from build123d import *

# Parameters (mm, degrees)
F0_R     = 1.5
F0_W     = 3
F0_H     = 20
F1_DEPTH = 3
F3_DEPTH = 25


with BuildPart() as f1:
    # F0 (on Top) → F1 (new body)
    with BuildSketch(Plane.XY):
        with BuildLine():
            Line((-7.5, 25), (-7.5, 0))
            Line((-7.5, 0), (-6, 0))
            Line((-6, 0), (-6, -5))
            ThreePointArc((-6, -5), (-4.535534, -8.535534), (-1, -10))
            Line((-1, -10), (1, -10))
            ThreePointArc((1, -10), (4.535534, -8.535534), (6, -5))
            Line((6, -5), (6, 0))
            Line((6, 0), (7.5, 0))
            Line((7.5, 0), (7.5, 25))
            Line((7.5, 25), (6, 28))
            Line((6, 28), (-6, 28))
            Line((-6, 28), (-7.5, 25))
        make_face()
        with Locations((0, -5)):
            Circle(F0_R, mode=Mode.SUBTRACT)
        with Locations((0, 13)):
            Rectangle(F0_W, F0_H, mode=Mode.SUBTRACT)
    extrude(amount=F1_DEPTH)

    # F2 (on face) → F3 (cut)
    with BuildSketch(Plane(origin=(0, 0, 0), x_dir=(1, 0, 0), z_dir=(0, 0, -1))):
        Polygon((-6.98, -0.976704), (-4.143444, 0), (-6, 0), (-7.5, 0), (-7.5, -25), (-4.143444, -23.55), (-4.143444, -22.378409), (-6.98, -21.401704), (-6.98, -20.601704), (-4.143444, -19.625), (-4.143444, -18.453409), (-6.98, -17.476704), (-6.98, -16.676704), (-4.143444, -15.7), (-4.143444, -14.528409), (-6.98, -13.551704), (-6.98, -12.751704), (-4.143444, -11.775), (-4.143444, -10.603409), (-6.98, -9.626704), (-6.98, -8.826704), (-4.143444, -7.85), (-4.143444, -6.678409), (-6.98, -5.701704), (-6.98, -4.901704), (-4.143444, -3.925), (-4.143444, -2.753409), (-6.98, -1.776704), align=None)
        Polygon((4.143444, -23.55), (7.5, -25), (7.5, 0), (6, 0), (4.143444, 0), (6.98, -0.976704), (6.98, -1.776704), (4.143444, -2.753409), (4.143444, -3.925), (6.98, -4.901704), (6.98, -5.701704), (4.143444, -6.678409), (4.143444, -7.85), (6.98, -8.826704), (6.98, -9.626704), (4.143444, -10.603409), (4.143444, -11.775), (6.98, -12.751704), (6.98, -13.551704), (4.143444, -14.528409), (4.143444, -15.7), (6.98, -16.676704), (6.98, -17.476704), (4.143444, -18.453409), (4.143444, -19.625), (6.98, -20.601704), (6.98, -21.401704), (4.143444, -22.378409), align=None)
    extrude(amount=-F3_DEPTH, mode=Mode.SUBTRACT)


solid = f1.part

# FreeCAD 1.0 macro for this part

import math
import FreeCAD as App
import Part
import Sketcher

V = App.Vector
Q = App.Units.Quantity


def add_polygon(sketch, points):
    """Adds a closed chain of lines whose ends are joined by coincident constraints."""
    first, n = sketch.GeometryCount, len(points)
    for a, b in zip(points, points[1:] + points[:1]):
        sketch.addGeometry(Part.LineSegment(App.Vector(*a, 0), App.Vector(*b, 0)), False)
    for i in range(n):
        sketch.addConstraint(Sketcher.Constraint("Coincident", first + i, 2, first + (i + 1) % n, 1))

doc = App.newDocument("Part")
params = doc.addObject("Spreadsheet::Sheet", "Params")
for row, (alias, value) in enumerate([
    ("sketch1_diameter", "3 mm"),
    ("sketch1_radius", "5 mm"),
    ("sketch1_width", "2 mm"),
    ("sketch1_width2", "3 mm"),
    ("sketch1_height", "25 mm"),
    ("pad1_length", "3 mm"),
    ("sketch2_height", "25 mm"),
    ("sketch2_length", "3 mm"),
    ("sketch2_height2", "0.8 mm"),
    ("pocket1_length", "25 mm"),
], start=1):
    params.set(f"A{row}", alias)
    params.set(f"B{row}", "=" + value)
    params.setAlias(f"B{row}", alias)

body = doc.addObject("PartDesign::Body", "Body")

# Sketch on XY plane
sketch1 = body.newObject("Sketcher::SketchObject", "Sketch")
sketch1.AttachmentSupport = (doc.getObject("XY_Plane"), [""])
sketch1.MapMode = "FlatFace"
sketch1.addGeometry(Part.LineSegment(V(-7.5, 25, 0), V(-7.5, 0, 0)), False)  # 0
sketch1.addGeometry(Part.LineSegment(V(-7.5, 0, 0), V(-6, 0, 0)), False)  # 1
sketch1.addGeometry(Part.LineSegment(V(-6, 0, 0), V(-6, -5, 0)), False)  # 2
sketch1.addGeometry(Part.ArcOfCircle(Part.Circle(V(-1, -5, 0), V(0, 0, 1), 5), math.radians(179.999996), math.radians(270.000004)), False)  # 3
sketch1.addGeometry(Part.LineSegment(V(-1, -10, 0), V(1, -10, 0)), False)  # 4
sketch1.addGeometry(Part.ArcOfCircle(Part.Circle(V(1, -5, 0), V(0, 0, 1), 5), math.radians(-90.000004), math.radians(0.000004)), False)  # 5
sketch1.addGeometry(Part.LineSegment(V(6, -5, 0), V(6, 0, 0)), False)  # 6
sketch1.addGeometry(Part.LineSegment(V(6, 0, 0), V(7.5, 0, 0)), False)  # 7
sketch1.addGeometry(Part.LineSegment(V(7.5, 0, 0), V(7.5, 25, 0)), False)  # 8
sketch1.addGeometry(Part.LineSegment(V(7.5, 25, 0), V(6, 28, 0)), False)  # 9
sketch1.addGeometry(Part.LineSegment(V(6, 28, 0), V(-6, 28, 0)), False)  # 10
sketch1.addGeometry(Part.LineSegment(V(-6, 28, 0), V(-7.5, 25, 0)), False)  # 11
sketch1.addGeometry(Part.Circle(V(0, -5, 0), V(0, 0, 1), 1.5), False)  # 12
add_polygon(sketch1, [(1.5, 3), (-1.5, 3), (-1.5, 23), (1.5, 23)])  # lines 13-16
sketch1.addConstraint(Sketcher.Constraint("Coincident", 0, 2, 1, 1))
sketch1.addConstraint(Sketcher.Constraint("Coincident", 1, 2, 2, 1))
sketch1.addConstraint(Sketcher.Constraint("Tangent", 2, 2, 3, 1))
sketch1.addConstraint(Sketcher.Constraint("Tangent", 3, 2, 4, 1))
sketch1.addConstraint(Sketcher.Constraint("Tangent", 4, 2, 5, 1))
sketch1.addConstraint(Sketcher.Constraint("Tangent", 5, 2, 6, 1))
sketch1.addConstraint(Sketcher.Constraint("Coincident", 6, 2, 7, 1))
sketch1.addConstraint(Sketcher.Constraint("Coincident", 7, 2, 8, 1))
sketch1.addConstraint(Sketcher.Constraint("Coincident", 8, 2, 9, 1))
sketch1.addConstraint(Sketcher.Constraint("Coincident", 9, 2, 10, 1))
sketch1.addConstraint(Sketcher.Constraint("Coincident", 10, 2, 11, 1))
sketch1.addConstraint(Sketcher.Constraint("Coincident", 11, 2, 0, 1))
sketch1.addConstraint(Sketcher.Constraint("Vertical", 0))
sketch1.addConstraint(Sketcher.Constraint("Horizontal", 1))
sketch1.addConstraint(Sketcher.Constraint("Vertical", 2))
sketch1.addConstraint(Sketcher.Constraint("Horizontal", 4))
sketch1.addConstraint(Sketcher.Constraint("Vertical", 6))
sketch1.addConstraint(Sketcher.Constraint("Horizontal", 7))
sketch1.addConstraint(Sketcher.Constraint("Vertical", 8))
sketch1.addConstraint(Sketcher.Constraint("Horizontal", 10))
sketch1.addConstraint(Sketcher.Constraint("Horizontal", 13))
sketch1.addConstraint(Sketcher.Constraint("Vertical", 14))
sketch1.addConstraint(Sketcher.Constraint("Horizontal", 15))
sketch1.addConstraint(Sketcher.Constraint("Vertical", 16))
sketch1.addConstraint(Sketcher.Constraint("Equal", 3, 5))
sketch1.addConstraint(Sketcher.Constraint("Symmetric", 1, 2, 6, 2, -1, 1))
sketch1.addConstraint(Sketcher.Constraint("Symmetric", 0, 2, 7, 2, -2))
sketch1.addConstraint(Sketcher.Constraint("PointOnObject", 12, 3, -2))
sketch1.addConstraint(Sketcher.Constraint("Horizontal", 5, 3, 12, 3))
sketch1.addConstraint(Sketcher.Constraint("Horizontal", 8, 2, 11, 2))
sketch1.addConstraint(Sketcher.Constraint("Vertical", 6, 2, 9, 2))
sketch1.addConstraint(Sketcher.Constraint("Vertical", 2, 2, 10, 2))
sketch1.addConstraint(Sketcher.Constraint("Diameter", 12, 3.0))
sketch1.addConstraint(Sketcher.Constraint("Radius", 3, 5.0))
sketch1.addConstraint(Sketcher.Constraint("DistanceX", 4, 1, 4, 2, 2.0))
sketch1.addConstraint(Sketcher.Constraint("DistanceX", 13, 2, 13, 1, 3.0))
sketch1.addConstraint(Sketcher.Constraint("DistanceY", 0, 2, 0, 1, 25.0))
sketch1.addConstraint(Sketcher.Constraint("DistanceY", 2, 2, 2, 1, 5.0))
sketch1.addConstraint(Sketcher.Constraint("DistanceY", 14, 1, 14, 2, 20.0))
sketch1.addConstraint(Sketcher.Constraint("DistanceX", 1, 1, 1, 2, 1.5))
sketch1.addConstraint(Sketcher.Constraint("DistanceY", -1, 1, 9, 2, 28.0))
sketch1.addConstraint(Sketcher.Constraint("DistanceY", -1, 1, 13, 2, 3.0))
sketch1.addConstraint(Sketcher.Constraint("DistanceX", 0, 2, 13, 2, 6.0))
sketch1.setExpression("Constraints[36]", "Params.sketch1_diameter")
sketch1.setExpression("Constraints[37]", "Params.sketch1_radius")
sketch1.setExpression("Constraints[38]", "Params.sketch1_width")
sketch1.setExpression("Constraints[39]", "Params.sketch1_width2")
sketch1.setExpression("Constraints[40]", "Params.sketch1_height")
pad1 = body.newObject("PartDesign::Pad", "Pad")
pad1.Profile = sketch1
pad1.setExpression("Length", "Params.pad1_length")

# Sketch on XY plane
sketch2 = body.newObject("Sketcher::SketchObject", "Sketch001")
sketch2.AttachmentSupport = (doc.getObject("XY_Plane"), [""])
sketch2.MapMode = "FlatFace"
add_polygon(sketch2, [(-6.98, 0.976704), (-4.143444, 0), (-7.5, 0), (-7.5, 25), (-4.143444, 23.55), (-4.143444, 22.378409), (-6.98, 21.401704), (-6.98, 20.601704), (-4.143444, 19.625), (-4.143444, 18.453409), (-6.98, 17.476704), (-6.98, 16.676704), (-4.143444, 15.7), (-4.143444, 14.528409), (-6.98, 13.551704), (-6.98, 12.751704), (-4.143444, 11.775), (-4.143444, 10.603409), (-6.98, 9.626704), (-6.98, 8.826704), (-4.143444, 7.85), (-4.143444, 6.678409), (-6.98, 5.701704), (-6.98, 4.901704), (-4.143444, 3.925), (-4.143444, 2.753409), (-6.98, 1.776704)])  # lines 0-26
add_polygon(sketch2, [(4.143444, 23.55), (7.5, 25), (7.5, 0), (4.143444, 0), (6.98, 0.976704), (6.98, 1.776704), (4.143444, 2.753409), (4.143444, 3.925), (6.98, 4.901704), (6.98, 5.701704), (4.143444, 6.678409), (4.143444, 7.85), (6.98, 8.826704), (6.98, 9.626704), (4.143444, 10.603409), (4.143444, 11.775), (6.98, 12.751704), (6.98, 13.551704), (4.143444, 14.528409), (4.143444, 15.7), (6.98, 16.676704), (6.98, 17.476704), (4.143444, 18.453409), (4.143444, 19.625), (6.98, 20.601704), (6.98, 21.401704), (4.143444, 22.378409)])  # lines 27-53
sketch2.addConstraint(Sketcher.Constraint("Horizontal", 1))
sketch2.addConstraint(Sketcher.Constraint("Vertical", 2))
sketch2.addConstraint(Sketcher.Constraint("Vertical", 4))
sketch2.addConstraint(Sketcher.Constraint("Vertical", 6))
sketch2.addConstraint(Sketcher.Constraint("Vertical", 8))
sketch2.addConstraint(Sketcher.Constraint("Vertical", 10))
sketch2.addConstraint(Sketcher.Constraint("Vertical", 12))
sketch2.addConstraint(Sketcher.Constraint("Vertical", 14))
sketch2.addConstraint(Sketcher.Constraint("Vertical", 16))
sketch2.addConstraint(Sketcher.Constraint("Vertical", 18))
sketch2.addConstraint(Sketcher.Constraint("Vertical", 20))
sketch2.addConstraint(Sketcher.Constraint("Vertical", 22))
sketch2.addConstraint(Sketcher.Constraint("Vertical", 24))
sketch2.addConstraint(Sketcher.Constraint("Vertical", 26))
sketch2.addConstraint(Sketcher.Constraint("Vertical", 28))
sketch2.addConstraint(Sketcher.Constraint("Horizontal", 29))
sketch2.addConstraint(Sketcher.Constraint("Vertical", 31))
sketch2.addConstraint(Sketcher.Constraint("Vertical", 33))
sketch2.addConstraint(Sketcher.Constraint("Vertical", 35))
sketch2.addConstraint(Sketcher.Constraint("Vertical", 37))
sketch2.addConstraint(Sketcher.Constraint("Vertical", 39))
sketch2.addConstraint(Sketcher.Constraint("Vertical", 41))
sketch2.addConstraint(Sketcher.Constraint("Vertical", 43))
sketch2.addConstraint(Sketcher.Constraint("Vertical", 45))
sketch2.addConstraint(Sketcher.Constraint("Vertical", 47))
sketch2.addConstraint(Sketcher.Constraint("Vertical", 49))
sketch2.addConstraint(Sketcher.Constraint("Vertical", 51))
sketch2.addConstraint(Sketcher.Constraint("Vertical", 53))
sketch2.addConstraint(Sketcher.Constraint("Symmetric", 1, 2, 28, 2, -1, 1))
sketch2.addConstraint(Sketcher.Constraint("Symmetric", 0, 2, 29, 2, -2))
sketch2.addConstraint(Sketcher.Constraint("Symmetric", 26, 2, 30, 2, -2))
sketch2.addConstraint(Sketcher.Constraint("Symmetric", 24, 2, 32, 2, -2))
sketch2.addConstraint(Sketcher.Constraint("Symmetric", 22, 2, 34, 2, -2))
sketch2.addConstraint(Sketcher.Constraint("Symmetric", 20, 2, 36, 2, -2))
sketch2.addConstraint(Sketcher.Constraint("Symmetric", 18, 2, 38, 2, -2))
sketch2.addConstraint(Sketcher.Constraint("Symmetric", 16, 2, 40, 2, -2))
sketch2.addConstraint(Sketcher.Constraint("Symmetric", 14, 2, 42, 2, -2))
sketch2.addConstraint(Sketcher.Constraint("Symmetric", 12, 2, 44, 2, -2))
sketch2.addConstraint(Sketcher.Constraint("Symmetric", 10, 2, 46, 2, -2))
sketch2.addConstraint(Sketcher.Constraint("Symmetric", 8, 2, 48, 2, -2))
sketch2.addConstraint(Sketcher.Constraint("Symmetric", 6, 2, 50, 2, -2))
sketch2.addConstraint(Sketcher.Constraint("Symmetric", 4, 2, 52, 2, -2))
sketch2.addConstraint(Sketcher.Constraint("Parallel", 0, 7))
sketch2.addConstraint(Sketcher.Constraint("Parallel", 5, 9))
sketch2.addConstraint(Sketcher.Constraint("Parallel", 7, 11))
sketch2.addConstraint(Sketcher.Constraint("Parallel", 9, 13))
sketch2.addConstraint(Sketcher.Constraint("Parallel", 11, 15))
sketch2.addConstraint(Sketcher.Constraint("Parallel", 13, 17))
sketch2.addConstraint(Sketcher.Constraint("Parallel", 15, 19))
sketch2.addConstraint(Sketcher.Constraint("Parallel", 17, 21))
sketch2.addConstraint(Sketcher.Constraint("Parallel", 19, 23))
sketch2.addConstraint(Sketcher.Constraint("Parallel", 21, 25))
sketch2.addConstraint(Sketcher.Constraint("Parallel", 25, 30))
sketch2.addConstraint(Sketcher.Constraint("Parallel", 23, 32))
sketch2.addConstraint(Sketcher.Constraint("Parallel", 30, 34))
sketch2.addConstraint(Sketcher.Constraint("Parallel", 32, 36))
sketch2.addConstraint(Sketcher.Constraint("Parallel", 34, 38))
sketch2.addConstraint(Sketcher.Constraint("Parallel", 36, 40))
sketch2.addConstraint(Sketcher.Constraint("Parallel", 38, 42))
sketch2.addConstraint(Sketcher.Constraint("Parallel", 40, 44))
sketch2.addConstraint(Sketcher.Constraint("Parallel", 42, 46))
sketch2.addConstraint(Sketcher.Constraint("Parallel", 44, 48))
sketch2.addConstraint(Sketcher.Constraint("Parallel", 46, 50))
sketch2.addConstraint(Sketcher.Constraint("Parallel", 48, 52))
sketch2.addConstraint(Sketcher.Constraint("Horizontal", 2, 2, 27, 2))
sketch2.addConstraint(Sketcher.Constraint("Horizontal", 3, 2, 53, 2))
sketch2.addConstraint(Sketcher.Constraint("Vertical", 0, 2, 3, 2))
sketch2.addConstraint(Sketcher.Constraint("Vertical", 4, 2, 7, 2))
sketch2.addConstraint(Sketcher.Constraint("Vertical", 6, 2, 9, 2))
sketch2.addConstraint(Sketcher.Constraint("Vertical", 8, 2, 11, 2))
sketch2.addConstraint(Sketcher.Constraint("Vertical", 10, 2, 13, 2))
sketch2.addConstraint(Sketcher.Constraint("Vertical", 12, 2, 15, 2))
sketch2.addConstraint(Sketcher.Constraint("Vertical", 14, 2, 17, 2))
sketch2.addConstraint(Sketcher.Constraint("Vertical", 16, 2, 19, 2))
sketch2.addConstraint(Sketcher.Constraint("Vertical", 18, 2, 21, 2))
sketch2.addConstraint(Sketcher.Constraint("Vertical", 20, 2, 23, 2))
sketch2.addConstraint(Sketcher.Constraint("Vertical", 22, 2, 25, 2))
sketch2.addConstraint(Sketcher.Constraint("Equal", 4, 8))
sketch2.addConstraint(Sketcher.Constraint("Equal", 6, 10))
sketch2.addConstraint(Sketcher.Constraint("Equal", 8, 12))
sketch2.addConstraint(Sketcher.Constraint("Equal", 10, 14))
sketch2.addConstraint(Sketcher.Constraint("Equal", 12, 16))
sketch2.addConstraint(Sketcher.Constraint("Equal", 14, 18))
sketch2.addConstraint(Sketcher.Constraint("Equal", 16, 20))
sketch2.addConstraint(Sketcher.Constraint("Equal", 18, 22))
sketch2.addConstraint(Sketcher.Constraint("Equal", 20, 24))
sketch2.addConstraint(Sketcher.Constraint("Equal", 22, 26))
sketch2.addConstraint(Sketcher.Constraint("DistanceY", 2, 1, 2, 2, 25.0))
sketch2.addConstraint(Sketcher.Constraint("Angle", 0, Q("-18.99999 deg")))
sketch2.addConstraint(Sketcher.Constraint("Distance", 0, 3.0))
sketch2.addConstraint(Sketcher.Constraint("DistanceY", 6, 2, 6, 1, 0.8))
sketch2.addConstraint(Sketcher.Constraint("DistanceX", 1, 2, -1, 1, 7.5))
sketch2.addConstraint(Sketcher.Constraint("DistanceY", -1, 1, 11, 2, 15.7))
sketch2.addConstraint(Sketcher.Constraint("DistanceX", 5, 2, -1, 1, 6.98))
sketch2.setExpression("Constraints[141]", "Params.sketch2_height")
sketch2.setExpression("Constraints[143]", "Params.sketch2_length")
sketch2.setExpression("Constraints[144]", "Params.sketch2_height2")
pocket1 = body.newObject("PartDesign::Pocket", "Pocket")
pocket1.Profile = sketch2
pocket1.setExpression("Length", "Params.pocket1_length")
pocket1.Reversed = True

doc.recompute()
